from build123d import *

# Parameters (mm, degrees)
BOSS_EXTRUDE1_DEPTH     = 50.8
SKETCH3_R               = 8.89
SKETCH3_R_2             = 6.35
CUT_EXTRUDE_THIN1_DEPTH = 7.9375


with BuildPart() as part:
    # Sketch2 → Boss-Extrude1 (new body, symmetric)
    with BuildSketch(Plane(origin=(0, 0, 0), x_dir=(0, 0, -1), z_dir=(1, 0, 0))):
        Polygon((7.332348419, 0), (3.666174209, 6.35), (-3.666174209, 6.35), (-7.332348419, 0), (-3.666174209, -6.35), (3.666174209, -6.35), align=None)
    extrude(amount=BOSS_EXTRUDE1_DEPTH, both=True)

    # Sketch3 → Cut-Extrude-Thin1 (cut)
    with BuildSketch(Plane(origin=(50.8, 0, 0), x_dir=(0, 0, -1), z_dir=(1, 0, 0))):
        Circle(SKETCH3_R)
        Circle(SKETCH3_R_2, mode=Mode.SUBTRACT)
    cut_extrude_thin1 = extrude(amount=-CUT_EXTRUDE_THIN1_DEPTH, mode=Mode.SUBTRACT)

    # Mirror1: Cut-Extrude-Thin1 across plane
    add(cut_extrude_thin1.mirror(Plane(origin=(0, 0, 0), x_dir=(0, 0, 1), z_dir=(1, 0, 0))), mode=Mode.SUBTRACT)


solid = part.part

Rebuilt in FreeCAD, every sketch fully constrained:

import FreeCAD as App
import Part
import Sketcher
Q = App.Units.Quantity


def add_polygon(sketch, points):
    """Adds a closed chain of lines whose ends are joined by coincident constraints."""
    first, n = sketch.GeometryCount, len(points)
    for a, b in zip(points, points[1:] + points[:1]):
        sketch.addGeometry(Part.LineSegment(App.Vector(*a, 0), App.Vector(*b, 0)), False)
    for i in range(n):
        sketch.addConstraint(Sketcher.Constraint("Coincident", first + i, 2, first + (i + 1) % n, 1))

doc = App.newDocument("Part")
body = doc.addObject("PartDesign::Body", "Body")

# Sketch on YZ plane
sketch1 = doc.addObject("Sketcher::SketchObject", "Sketch")
body.addObject(sketch1)
sketch1.AttachmentSupport = (doc.YZ_Plane, [""])
sketch1.MapMode = "FlatFace"
add_polygon(sketch1, [(0, -7.332348), (6.35, -3.666174), (6.35, 3.666174), (0, 7.332348), (-6.35, 3.666174), (-6.35, -3.666174)])  # lines 0-5
sketch1.addConstraint([
    Sketcher.Constraint("Vertical", 1),
    Sketcher.Constraint("Vertical", 4),
    Sketcher.Constraint("Symmetric", 0, 2, 3, 2, -1, 1),
    Sketcher.Constraint("Symmetric", 2, 2, 5, 2, -1, 1),
    Sketcher.Constraint("PointOnObject", 2, 2, -2),
    Sketcher.Constraint("Parallel", 2, 5),
    Sketcher.Constraint("Horizontal", 1, 2, 3, 2),
    Sketcher.Constraint("Angle", 0, Q("30 deg")),
    Sketcher.Constraint("DistanceX", 3, 2, 1, 2, Q("0.5 in")),
    Sketcher.Constraint("DistanceY", 1, 1, 1, 2, 7.332348),
])
pad1 = doc.addObject("PartDesign::Pad", "Pad")
body.addObject(pad1)
pad1.Profile = sketch1
pad1.Length = Q("4 in")
pad1.Midplane = True

# Sketch on YZ plane
sketch2 = doc.addObject("Sketcher::SketchObject", "Sketch001")
body.addObject(sketch2)
sketch2.AttachmentSupport = (doc.YZ_Plane, [""])
sketch2.MapMode = "FlatFace"
sketch2.AttachmentOffset = App.Placement(App.Vector(0, 0, 2 * 25.4), App.Rotation())
sketch2.addGeometry([
    Part.Circle(App.Vector(0, 0, 0), App.Vector(0, 0, 1), 8.89),
    Part.Circle(App.Vector(0, 0, 0), App.Vector(0, 0, 1), 6.35),
], False)
sketch2.addConstraint([
    Sketcher.Constraint("Coincident", 0, 3, -1, 1),
    Sketcher.Constraint("Coincident", 1, 3, -1, 1),
    Sketcher.Constraint("Diameter", 0, Q("0.7 in")),
    Sketcher.Constraint("Diameter", 1, Q("0.5 in")),
])
pocket1 = doc.addObject("PartDesign::Pocket", "Pocket")
body.addObject(pocket1)
pocket1.Profile = sketch2
pocket1.Length = Q("0.3125 in")
doc.recompute()

mirrored = doc.addObject("PartDesign::Mirrored", "Mirrored")
body.addObject(mirrored)
mirrored.Originals = [pocket1]
mirrored.MirrorPlane = (doc.YZ_Plane, [""])
body.Tip = mirrored

doc.recompute()
